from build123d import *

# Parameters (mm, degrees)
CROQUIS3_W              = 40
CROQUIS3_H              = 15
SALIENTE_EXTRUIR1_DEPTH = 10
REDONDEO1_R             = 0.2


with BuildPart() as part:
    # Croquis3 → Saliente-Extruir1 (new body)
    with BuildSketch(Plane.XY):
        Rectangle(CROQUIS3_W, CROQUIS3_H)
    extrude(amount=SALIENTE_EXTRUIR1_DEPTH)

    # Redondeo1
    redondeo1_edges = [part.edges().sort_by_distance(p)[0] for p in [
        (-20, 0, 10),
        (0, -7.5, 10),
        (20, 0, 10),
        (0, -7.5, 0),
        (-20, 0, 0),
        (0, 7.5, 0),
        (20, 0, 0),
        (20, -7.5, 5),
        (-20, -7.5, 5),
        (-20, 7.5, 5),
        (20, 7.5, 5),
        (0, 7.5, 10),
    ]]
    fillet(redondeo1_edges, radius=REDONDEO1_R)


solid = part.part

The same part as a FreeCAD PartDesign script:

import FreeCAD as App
import Part
import Sketcher
Q = App.Units.Quantity

doc = App.newDocument("Part")
body = doc.addObject("PartDesign::Body", "Body")

sketch1 = body.newObject("Sketcher::SketchObject", "Sketch")
sketch1.AttachmentSupport = (doc.getObject("XY_Plane"), [""])
sketch1.MapMode = "FlatFace"
sketch1.addGeometry(Part.LineSegment(App.Vector(-20, 8, 0), App.Vector(-20, -8, 0)), False)
sketch1.addGeometry(Part.LineSegment(App.Vector(-20, -8, 0), App.Vector(20, -8, 0)), False)
sketch1.addGeometry(Part.LineSegment(App.Vector(20, -8, 0), App.Vector(20, 8, 0)), False)
sketch1.addGeometry(Part.LineSegment(App.Vector(20, 8, 0), App.Vector(-20, 8, 0)), False)
sketch1.addConstraint(Sketcher.Constraint("Coincident", 0, 2, 1, 1))
sketch1.addConstraint(Sketcher.Constraint("Coincident", 1, 2, 2, 1))
sketch1.addConstraint(Sketcher.Constraint("Coincident", 2, 2, 3, 1))
sketch1.addConstraint(Sketcher.Constraint("Coincident", 3, 2, 0, 1))
sketch1.addConstraint(Sketcher.Constraint("Vertical", 0))
sketch1.addConstraint(Sketcher.Constraint("Horizontal", 1))
sketch1.addConstraint(Sketcher.Constraint("Vertical", 2))
sketch1.addConstraint(Sketcher.Constraint("Horizontal", 3))
sketch1.addConstraint(Sketcher.Constraint("Symmetric", 0, 2, 2, 2, -1, 1))
sketch1.addConstraint(Sketcher.Constraint("DistanceX", 1, 1, 1, 2, Q("40 mm")))
sketch1.addConstraint(Sketcher.Constraint("DistanceY", 0, 2, 0, 1, Q("15 mm")))
pad1 = body.newObject("PartDesign::Pad", "Pad")
pad1.Profile = sketch1
pad1.Length = 10
doc.recompute()

fillet = body.newObject("PartDesign::Fillet", "Fillet")
fillet.Base = (pad1, ["Edge1"])
fillet.UseAllEdges = True
fillet.Radius = 0.2

doc.recompute()
